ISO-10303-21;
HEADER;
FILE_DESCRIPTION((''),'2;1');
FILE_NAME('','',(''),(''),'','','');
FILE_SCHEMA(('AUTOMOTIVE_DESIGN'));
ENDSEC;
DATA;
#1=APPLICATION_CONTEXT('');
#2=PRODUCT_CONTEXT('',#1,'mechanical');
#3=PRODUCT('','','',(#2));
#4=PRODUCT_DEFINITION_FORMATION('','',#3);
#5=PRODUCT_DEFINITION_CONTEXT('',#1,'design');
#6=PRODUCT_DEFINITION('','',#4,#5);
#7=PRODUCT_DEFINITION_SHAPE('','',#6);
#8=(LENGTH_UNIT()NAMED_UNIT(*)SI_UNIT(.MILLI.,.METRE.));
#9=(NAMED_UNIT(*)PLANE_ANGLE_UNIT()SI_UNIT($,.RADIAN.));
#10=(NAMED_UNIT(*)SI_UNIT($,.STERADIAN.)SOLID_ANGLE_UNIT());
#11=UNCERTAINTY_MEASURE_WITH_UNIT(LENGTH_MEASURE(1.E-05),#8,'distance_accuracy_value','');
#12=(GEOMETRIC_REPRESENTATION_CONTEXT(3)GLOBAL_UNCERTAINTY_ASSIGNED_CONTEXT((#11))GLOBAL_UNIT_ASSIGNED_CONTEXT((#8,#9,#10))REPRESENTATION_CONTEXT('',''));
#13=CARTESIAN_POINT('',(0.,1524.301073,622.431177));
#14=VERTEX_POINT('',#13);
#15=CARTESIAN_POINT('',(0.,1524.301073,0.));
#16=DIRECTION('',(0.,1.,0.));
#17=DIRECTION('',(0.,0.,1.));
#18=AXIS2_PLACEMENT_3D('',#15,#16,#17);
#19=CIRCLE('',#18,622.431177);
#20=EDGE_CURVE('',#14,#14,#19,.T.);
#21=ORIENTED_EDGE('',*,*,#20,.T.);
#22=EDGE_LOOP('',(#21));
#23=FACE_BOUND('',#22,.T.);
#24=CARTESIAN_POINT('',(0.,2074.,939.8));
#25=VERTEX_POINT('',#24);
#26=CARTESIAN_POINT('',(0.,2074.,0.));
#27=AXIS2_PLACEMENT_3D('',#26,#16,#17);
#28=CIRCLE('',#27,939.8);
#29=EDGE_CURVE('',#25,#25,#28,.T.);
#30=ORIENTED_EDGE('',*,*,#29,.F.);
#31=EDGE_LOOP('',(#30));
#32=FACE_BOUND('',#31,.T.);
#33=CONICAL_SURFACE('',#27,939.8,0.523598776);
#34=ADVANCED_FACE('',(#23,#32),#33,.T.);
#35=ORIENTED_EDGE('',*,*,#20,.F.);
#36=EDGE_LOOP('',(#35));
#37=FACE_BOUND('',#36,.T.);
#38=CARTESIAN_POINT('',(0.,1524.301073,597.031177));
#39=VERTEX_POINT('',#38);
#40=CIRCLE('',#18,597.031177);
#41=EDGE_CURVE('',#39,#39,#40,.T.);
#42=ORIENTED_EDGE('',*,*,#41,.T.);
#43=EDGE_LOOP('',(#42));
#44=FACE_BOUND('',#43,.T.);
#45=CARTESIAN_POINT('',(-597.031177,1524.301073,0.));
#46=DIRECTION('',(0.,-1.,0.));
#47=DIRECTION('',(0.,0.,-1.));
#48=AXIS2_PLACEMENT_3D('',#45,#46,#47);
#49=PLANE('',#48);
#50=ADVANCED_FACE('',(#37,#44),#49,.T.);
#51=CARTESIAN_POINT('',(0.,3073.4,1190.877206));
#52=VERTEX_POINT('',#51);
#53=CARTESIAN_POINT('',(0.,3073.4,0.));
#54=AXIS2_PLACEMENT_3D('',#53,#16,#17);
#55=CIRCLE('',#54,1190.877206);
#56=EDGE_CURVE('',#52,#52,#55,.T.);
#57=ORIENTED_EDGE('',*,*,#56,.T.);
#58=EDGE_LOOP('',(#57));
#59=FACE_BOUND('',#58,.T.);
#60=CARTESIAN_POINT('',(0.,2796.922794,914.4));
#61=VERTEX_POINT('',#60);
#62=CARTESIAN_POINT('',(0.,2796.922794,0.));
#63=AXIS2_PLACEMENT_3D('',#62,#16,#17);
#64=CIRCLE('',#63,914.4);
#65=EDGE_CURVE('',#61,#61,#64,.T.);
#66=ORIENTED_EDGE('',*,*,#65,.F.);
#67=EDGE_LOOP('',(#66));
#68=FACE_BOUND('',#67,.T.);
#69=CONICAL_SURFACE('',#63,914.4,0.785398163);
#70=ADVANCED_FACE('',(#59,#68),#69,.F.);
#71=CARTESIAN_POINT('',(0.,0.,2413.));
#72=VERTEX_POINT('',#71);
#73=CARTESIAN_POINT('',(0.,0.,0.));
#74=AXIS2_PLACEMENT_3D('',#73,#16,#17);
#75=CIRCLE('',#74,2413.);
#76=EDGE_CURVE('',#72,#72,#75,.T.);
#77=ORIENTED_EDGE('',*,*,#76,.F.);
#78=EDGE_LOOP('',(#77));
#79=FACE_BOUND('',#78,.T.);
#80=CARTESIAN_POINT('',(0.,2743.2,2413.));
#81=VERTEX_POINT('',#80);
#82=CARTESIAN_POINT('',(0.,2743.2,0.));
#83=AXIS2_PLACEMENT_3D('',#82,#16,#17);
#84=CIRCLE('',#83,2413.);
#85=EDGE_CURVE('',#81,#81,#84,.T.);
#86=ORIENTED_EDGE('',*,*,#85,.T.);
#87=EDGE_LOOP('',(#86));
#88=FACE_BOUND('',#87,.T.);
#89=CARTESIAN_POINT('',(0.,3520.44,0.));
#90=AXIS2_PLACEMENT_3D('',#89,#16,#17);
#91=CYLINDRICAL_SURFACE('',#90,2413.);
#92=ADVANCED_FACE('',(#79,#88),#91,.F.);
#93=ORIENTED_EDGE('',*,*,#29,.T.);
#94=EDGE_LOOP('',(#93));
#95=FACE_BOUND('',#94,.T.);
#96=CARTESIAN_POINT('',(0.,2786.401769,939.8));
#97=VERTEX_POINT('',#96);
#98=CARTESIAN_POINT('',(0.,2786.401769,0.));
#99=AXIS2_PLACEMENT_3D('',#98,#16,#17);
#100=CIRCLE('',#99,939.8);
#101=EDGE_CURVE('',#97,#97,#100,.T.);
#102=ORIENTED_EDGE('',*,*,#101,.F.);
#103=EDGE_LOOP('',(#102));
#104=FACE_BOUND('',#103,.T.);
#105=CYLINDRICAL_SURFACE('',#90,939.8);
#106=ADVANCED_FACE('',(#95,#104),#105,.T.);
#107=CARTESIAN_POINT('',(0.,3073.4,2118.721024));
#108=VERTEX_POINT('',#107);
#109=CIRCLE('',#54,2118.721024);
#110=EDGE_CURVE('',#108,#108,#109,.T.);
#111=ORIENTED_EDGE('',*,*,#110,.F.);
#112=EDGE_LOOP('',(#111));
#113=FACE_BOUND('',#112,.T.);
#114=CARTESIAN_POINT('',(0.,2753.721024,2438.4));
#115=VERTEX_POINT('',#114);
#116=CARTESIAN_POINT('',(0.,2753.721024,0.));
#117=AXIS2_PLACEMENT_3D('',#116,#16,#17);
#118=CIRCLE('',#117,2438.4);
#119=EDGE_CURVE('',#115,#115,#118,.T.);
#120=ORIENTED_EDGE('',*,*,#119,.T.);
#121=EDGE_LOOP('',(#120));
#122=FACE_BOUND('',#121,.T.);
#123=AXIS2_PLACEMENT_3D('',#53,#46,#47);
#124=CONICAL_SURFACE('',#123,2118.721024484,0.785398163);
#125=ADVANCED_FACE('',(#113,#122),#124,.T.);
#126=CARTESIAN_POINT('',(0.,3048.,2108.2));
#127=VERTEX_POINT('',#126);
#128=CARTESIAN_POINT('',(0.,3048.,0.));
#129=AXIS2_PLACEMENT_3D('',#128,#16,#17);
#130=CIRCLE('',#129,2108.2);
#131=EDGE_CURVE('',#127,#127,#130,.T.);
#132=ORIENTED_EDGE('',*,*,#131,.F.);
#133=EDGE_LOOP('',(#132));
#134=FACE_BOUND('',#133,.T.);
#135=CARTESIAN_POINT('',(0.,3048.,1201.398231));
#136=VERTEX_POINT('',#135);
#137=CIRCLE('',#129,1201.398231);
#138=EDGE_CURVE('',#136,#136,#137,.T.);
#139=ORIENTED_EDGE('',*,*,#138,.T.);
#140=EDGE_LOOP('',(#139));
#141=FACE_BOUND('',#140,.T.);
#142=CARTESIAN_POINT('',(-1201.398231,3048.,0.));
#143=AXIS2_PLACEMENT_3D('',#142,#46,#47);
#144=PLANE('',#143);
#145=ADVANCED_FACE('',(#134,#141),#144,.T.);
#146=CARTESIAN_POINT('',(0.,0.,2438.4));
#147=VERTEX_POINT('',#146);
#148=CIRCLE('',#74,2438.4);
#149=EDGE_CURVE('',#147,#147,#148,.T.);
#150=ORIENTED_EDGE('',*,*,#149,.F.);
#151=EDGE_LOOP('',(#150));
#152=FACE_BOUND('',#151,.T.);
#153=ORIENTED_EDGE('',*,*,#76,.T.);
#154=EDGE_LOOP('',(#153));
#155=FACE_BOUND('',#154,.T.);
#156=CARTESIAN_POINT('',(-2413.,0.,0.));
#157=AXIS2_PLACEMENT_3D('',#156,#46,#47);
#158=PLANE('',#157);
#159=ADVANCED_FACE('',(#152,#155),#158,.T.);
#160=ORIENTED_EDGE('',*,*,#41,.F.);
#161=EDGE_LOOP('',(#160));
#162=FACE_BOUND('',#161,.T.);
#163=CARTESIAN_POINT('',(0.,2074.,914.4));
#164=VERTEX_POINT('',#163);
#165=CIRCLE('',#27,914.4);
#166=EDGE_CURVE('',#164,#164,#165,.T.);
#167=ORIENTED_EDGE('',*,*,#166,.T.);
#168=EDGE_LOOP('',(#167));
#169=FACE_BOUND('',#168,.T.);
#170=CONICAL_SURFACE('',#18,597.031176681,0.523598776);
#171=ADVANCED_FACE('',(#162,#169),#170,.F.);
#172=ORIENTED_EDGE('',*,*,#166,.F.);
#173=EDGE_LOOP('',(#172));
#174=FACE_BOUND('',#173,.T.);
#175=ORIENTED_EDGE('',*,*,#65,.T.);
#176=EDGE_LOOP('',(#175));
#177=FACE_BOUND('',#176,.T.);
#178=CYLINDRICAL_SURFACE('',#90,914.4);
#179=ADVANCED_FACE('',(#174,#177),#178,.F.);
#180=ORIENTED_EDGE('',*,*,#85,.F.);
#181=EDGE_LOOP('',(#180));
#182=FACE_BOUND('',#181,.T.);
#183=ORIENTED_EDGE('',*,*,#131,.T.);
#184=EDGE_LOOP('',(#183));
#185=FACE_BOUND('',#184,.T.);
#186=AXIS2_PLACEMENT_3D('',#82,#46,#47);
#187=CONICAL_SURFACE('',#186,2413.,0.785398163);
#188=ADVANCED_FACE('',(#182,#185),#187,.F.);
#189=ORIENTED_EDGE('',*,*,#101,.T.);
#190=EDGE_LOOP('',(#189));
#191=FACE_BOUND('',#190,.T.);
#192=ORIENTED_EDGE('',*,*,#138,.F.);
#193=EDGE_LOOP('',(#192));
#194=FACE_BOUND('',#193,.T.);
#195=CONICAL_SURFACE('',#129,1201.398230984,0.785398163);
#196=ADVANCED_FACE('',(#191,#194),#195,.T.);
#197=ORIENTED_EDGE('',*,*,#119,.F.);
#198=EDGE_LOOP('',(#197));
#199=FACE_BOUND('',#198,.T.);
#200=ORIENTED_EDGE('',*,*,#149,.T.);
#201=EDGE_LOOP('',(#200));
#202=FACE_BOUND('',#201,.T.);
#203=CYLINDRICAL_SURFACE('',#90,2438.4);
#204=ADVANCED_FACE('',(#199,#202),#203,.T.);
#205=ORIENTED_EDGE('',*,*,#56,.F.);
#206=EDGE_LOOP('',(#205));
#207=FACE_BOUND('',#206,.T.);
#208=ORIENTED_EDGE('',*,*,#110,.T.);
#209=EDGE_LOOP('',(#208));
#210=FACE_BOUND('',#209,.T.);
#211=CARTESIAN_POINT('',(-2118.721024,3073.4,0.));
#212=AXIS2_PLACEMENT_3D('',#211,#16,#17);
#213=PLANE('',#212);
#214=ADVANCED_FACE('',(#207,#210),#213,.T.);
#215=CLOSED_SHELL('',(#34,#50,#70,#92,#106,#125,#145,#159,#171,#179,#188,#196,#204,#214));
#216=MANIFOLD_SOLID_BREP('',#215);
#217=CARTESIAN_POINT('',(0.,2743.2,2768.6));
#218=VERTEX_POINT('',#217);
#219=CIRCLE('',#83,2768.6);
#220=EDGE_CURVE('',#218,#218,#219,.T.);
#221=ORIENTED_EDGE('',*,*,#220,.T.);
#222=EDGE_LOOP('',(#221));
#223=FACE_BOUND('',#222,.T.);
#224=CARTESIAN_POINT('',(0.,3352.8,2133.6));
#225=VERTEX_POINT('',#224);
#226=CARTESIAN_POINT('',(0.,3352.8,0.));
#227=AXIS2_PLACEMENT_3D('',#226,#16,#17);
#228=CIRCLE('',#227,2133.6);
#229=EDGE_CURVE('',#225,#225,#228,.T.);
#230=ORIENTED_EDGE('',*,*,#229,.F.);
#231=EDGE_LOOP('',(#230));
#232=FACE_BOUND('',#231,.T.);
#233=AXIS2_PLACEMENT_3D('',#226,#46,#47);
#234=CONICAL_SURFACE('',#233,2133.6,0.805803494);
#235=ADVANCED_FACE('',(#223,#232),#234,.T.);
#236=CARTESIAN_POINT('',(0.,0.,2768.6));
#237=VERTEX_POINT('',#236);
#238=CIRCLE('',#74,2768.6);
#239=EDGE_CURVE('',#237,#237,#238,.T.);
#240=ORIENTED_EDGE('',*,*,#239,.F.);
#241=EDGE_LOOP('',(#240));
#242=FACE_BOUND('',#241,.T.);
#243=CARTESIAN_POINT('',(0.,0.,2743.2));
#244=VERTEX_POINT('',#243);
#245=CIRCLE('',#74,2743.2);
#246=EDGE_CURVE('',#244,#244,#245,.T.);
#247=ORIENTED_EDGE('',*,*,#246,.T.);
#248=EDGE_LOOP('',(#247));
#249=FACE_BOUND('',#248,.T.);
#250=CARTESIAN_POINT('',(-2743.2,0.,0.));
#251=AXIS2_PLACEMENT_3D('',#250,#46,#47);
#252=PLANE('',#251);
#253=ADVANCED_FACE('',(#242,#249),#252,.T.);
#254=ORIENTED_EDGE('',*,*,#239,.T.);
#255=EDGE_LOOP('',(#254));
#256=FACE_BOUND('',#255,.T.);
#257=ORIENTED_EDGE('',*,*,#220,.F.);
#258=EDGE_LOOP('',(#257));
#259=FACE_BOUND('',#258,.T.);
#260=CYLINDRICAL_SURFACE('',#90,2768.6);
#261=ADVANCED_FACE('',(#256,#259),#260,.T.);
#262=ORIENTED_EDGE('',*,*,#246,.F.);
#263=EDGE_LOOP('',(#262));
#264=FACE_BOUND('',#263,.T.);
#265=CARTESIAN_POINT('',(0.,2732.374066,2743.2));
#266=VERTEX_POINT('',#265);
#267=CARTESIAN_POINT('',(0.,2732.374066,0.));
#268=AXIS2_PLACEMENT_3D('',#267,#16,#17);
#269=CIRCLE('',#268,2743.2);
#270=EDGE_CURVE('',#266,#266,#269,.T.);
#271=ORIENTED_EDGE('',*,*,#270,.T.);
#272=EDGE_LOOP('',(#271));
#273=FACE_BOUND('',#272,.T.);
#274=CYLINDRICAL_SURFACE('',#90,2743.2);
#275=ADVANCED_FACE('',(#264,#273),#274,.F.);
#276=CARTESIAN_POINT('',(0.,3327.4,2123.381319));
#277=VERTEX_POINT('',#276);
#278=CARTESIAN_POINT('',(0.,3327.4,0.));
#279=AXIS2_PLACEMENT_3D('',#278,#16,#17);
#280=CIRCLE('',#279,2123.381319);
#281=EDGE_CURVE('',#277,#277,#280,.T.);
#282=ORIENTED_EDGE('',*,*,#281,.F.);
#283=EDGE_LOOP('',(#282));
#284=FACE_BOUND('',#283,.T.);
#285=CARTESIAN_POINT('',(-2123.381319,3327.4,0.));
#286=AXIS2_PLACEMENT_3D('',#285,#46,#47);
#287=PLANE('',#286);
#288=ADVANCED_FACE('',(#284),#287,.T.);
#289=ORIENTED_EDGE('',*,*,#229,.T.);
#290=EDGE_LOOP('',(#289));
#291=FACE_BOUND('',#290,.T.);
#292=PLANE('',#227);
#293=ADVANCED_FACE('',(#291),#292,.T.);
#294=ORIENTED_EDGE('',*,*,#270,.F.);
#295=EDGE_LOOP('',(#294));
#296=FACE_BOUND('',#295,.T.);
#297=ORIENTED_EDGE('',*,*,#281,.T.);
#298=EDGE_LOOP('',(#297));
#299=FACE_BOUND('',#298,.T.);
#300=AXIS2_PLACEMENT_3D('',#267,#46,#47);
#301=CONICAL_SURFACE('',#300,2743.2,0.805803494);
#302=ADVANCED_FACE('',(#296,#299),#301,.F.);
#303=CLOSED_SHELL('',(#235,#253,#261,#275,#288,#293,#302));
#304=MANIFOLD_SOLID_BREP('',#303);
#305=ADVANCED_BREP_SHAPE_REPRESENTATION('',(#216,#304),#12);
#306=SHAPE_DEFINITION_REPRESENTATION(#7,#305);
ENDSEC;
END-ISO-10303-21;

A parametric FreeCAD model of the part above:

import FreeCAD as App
import Part
import Sketcher
Q = App.Units.Quantity

doc = App.newDocument("Part")
body = doc.addObject("PartDesign::Body", "Body")

# Sketch on XY plane
sketch1 = body.newObject("Sketcher::SketchObject", "Sketch")
sketch1.AttachmentSupport = (doc.getObject("XY_Plane"), [""])
sketch1.MapMode = "FlatFace"
sketch1.addGeometry(Part.LineSegment(App.Vector(-2438, 2754, 0), App.Vector(-2438, 0, 0)), False)
sketch1.addGeometry(Part.LineSegment(App.Vector(-2438, 0, 0), App.Vector(-2413, 0, 0)), False)
sketch1.addGeometry(Part.LineSegment(App.Vector(-2413, 0, 0), App.Vector(-2413, 2743, 0)), False)
sketch1.addGeometry(Part.LineSegment(App.Vector(-2413, 2743, 0), App.Vector(-2108, 3048, 0)), False)
sketch1.addGeometry(Part.LineSegment(App.Vector(-2108, 3048, 0), App.Vector(-1201, 3048, 0)), False)
sketch1.addGeometry(Part.LineSegment(App.Vector(-1201, 3048, 0), App.Vector(-940, 2786, 0)), False)
sketch1.addGeometry(Part.LineSegment(App.Vector(-940, 2786, 0), App.Vector(-940, 2074, 0)), False)
sketch1.addGeometry(Part.LineSegment(App.Vector(-940, 2074, 0), App.Vector(-622, 1524, 0)), False)
sketch1.addGeometry(Part.LineSegment(App.Vector(-622, 1524, 0), App.Vector(-597, 1524, 0)), False)
sketch1.addGeometry(Part.LineSegment(App.Vector(-597, 1524, 0), App.Vector(-914, 2074, 0)), False)
sketch1.addGeometry(Part.LineSegment(App.Vector(-914, 2074, 0), App.Vector(-914, 2797, 0)), False)
sketch1.addGeometry(Part.LineSegment(App.Vector(-914, 2797, 0), App.Vector(-1191, 3073, 0)), False)
sketch1.addGeometry(Part.LineSegment(App.Vector(-1191, 3073, 0), App.Vector(-2119, 3073, 0)), False)
sketch1.addGeometry(Part.LineSegment(App.Vector(-2119, 3073, 0), App.Vector(-2438, 2754, 0)), False)
sketch1.addConstraint(Sketcher.Constraint("Coincident", 0, 2, 1, 1))
sketch1.addConstraint(Sketcher.Constraint("Coincident", 1, 2, 2, 1))
sketch1.addConstraint(Sketcher.Constraint("Coincident", 2, 2, 3, 1))
sketch1.addConstraint(Sketcher.Constraint("Coincident", 3, 2, 4, 1))
sketch1.addConstraint(Sketcher.Constraint("Coincident", 4, 2, 5, 1))
sketch1.addConstraint(Sketcher.Constraint("Coincident", 5, 2, 6, 1))
sketch1.addConstraint(Sketcher.Constraint("Coincident", 6, 2, 7, 1))
sketch1.addConstraint(Sketcher.Constraint("Coincident", 7, 2, 8, 1))
sketch1.addConstraint(Sketcher.Constraint("Coincident", 8, 2, 9, 1))
sketch1.addConstraint(Sketcher.Constraint("Coincident", 9, 2, 10, 1))
sketch1.addConstraint(Sketcher.Constraint("Coincident", 10, 2, 11, 1))
sketch1.addConstraint(Sketcher.Constraint("Coincident", 11, 2, 12, 1))
sketch1.addConstraint(Sketcher.Constraint("Coincident", 12, 2, 13, 1))
sketch1.addConstraint(Sketcher.Constraint("Coincident", 13, 2, 0, 1))
sketch1.addConstraint(Sketcher.Constraint("Vertical", 0))
sketch1.addConstraint(Sketcher.Constraint("Horizontal", 1))
sketch1.addConstraint(Sketcher.Constraint("Vertical", 2))
sketch1.addConstraint(Sketcher.Constraint("Horizontal", 4))
sketch1.addConstraint(Sketcher.Constraint("Vertical", 6))
sketch1.addConstraint(Sketcher.Constraint("Horizontal", 8))
sketch1.addConstraint(Sketcher.Constraint("Vertical", 10))
sketch1.addConstraint(Sketcher.Constraint("Horizontal", 12))
sketch1.addConstraint(Sketcher.Constraint("PointOnObject", 0, 2, -1))
sketch1.addConstraint(Sketcher.Constraint("Perpendicular", 3, 5))
sketch1.addConstraint(Sketcher.Constraint("Parallel", 7, 9))
sketch1.addConstraint(Sketcher.Constraint("Parallel", 5, 11))
sketch1.addConstraint(Sketcher.Constraint("Perpendicular", 11, 13))
sketch1.addConstraint(Sketcher.Constraint("Horizontal", 6, 2, 9, 2))
sketch1.addConstraint(Sketcher.Constraint("Equal", 1, 8))
sketch1.addConstraint(Sketcher.Constraint("DistanceX", 1, 1, 1, 2, Q("1 in")))
sketch1.addConstraint(Sketcher.Constraint("DistanceY", 2, 1, 2, 2, Q("108 in")))
sketch1.addConstraint(Sketcher.Constraint("DistanceX", 0, 2, -1, 1, Q("96 in")))
sketch1.addConstraint(Sketcher.Constraint("DistanceX", 3, 2, -1, 1, Q("83 in")))
sketch1.addConstraint(Sketcher.Constraint("DistanceY", -1, 1, 3, 2, Q("120 in")))
sketch1.addConstraint(Sketcher.Constraint("DistanceX", 5, 2, -1, 1, Q("37 in")))
sketch1.addConstraint(Sketcher.Constraint("DistanceY", -1, 1, 11, 2, Q("121 in")))
sketch1.addConstraint(Sketcher.Constraint("Angle", 7, Q("-60 deg")))
sketch1.addConstraint(Sketcher.Constraint("DistanceX", 4, 1, 4, 2, 906.801769))
sketch1.addConstraint(Sketcher.Constraint("DistanceY", 6, 2, 6, 1, 712.401769))
sketch1.addConstraint(Sketcher.Constraint("DistanceX", 12, 2, 12, 1, 927.843818))
sketch1.addConstraint(Sketcher.Constraint("DistanceY", 0, 2, 0, 1, 2753.721024))
sketch1.addConstraint(Sketcher.Constraint("Distance", 7, 634.737647))
revolution = body.newObject("PartDesign::Revolution", "Revolution")
revolution.Profile = sketch1
revolution.ReferenceAxis = (sketch1, ["V_Axis"])
revolution.Angle = 360
body2 = doc.addObject("PartDesign::Body", "Body001")

# Sketch on XY plane
sketch2 = body2.newObject("Sketcher::SketchObject", "Sketch001")
sketch2.AttachmentSupport = (doc.getObject("XY_Plane001"), [""])
sketch2.MapMode = "FlatFace"
sketch2.addGeometry(Part.LineSegment(App.Vector(-2769, 0, 0), App.Vector(-2743, 0, 0)), False)
sketch2.addGeometry(Part.LineSegment(App.Vector(-2743, 0, 0), App.Vector(-2743, 2732, 0)), False)
sketch2.addGeometry(Part.LineSegment(App.Vector(-2743, 2732, 0), App.Vector(-2123, 3327, 0)), False)
sketch2.addGeometry(Part.LineSegment(App.Vector(-2123, 3327, 0), App.Vector(0, 3327, 0)), False)
sketch2.addGeometry(Part.LineSegment(App.Vector(0, 3327, 0), App.Vector(0, 3353, 0)), False)
sketch2.addGeometry(Part.LineSegment(App.Vector(0, 3353, 0), App.Vector(-2134, 3353, 0)), False)
sketch2.addGeometry(Part.LineSegment(App.Vector(-2134, 3353, 0), App.Vector(-2769, 2743, 0)), False)
sketch2.addGeometry(Part.LineSegment(App.Vector(-2769, 2743, 0), App.Vector(-2769, 0, 0)), False)
sketch2.addConstraint(Sketcher.Constraint("Coincident", 0, 2, 1, 1))
sketch2.addConstraint(Sketcher.Constraint("Coincident", 1, 2, 2, 1))
sketch2.addConstraint(Sketcher.Constraint("Coincident", 2, 2, 3, 1))
sketch2.addConstraint(Sketcher.Constraint("Coincident", 3, 2, 4, 1))
sketch2.addConstraint(Sketcher.Constraint("Coincident", 4, 2, 5, 1))
sketch2.addConstraint(Sketcher.Constraint("Coincident", 5, 2, 6, 1))
sketch2.addConstraint(Sketcher.Constraint("Coincident", 6, 2, 7, 1))
sketch2.addConstraint(Sketcher.Constraint("Coincident", 7, 2, 0, 1))
sketch2.addConstraint(Sketcher.Constraint("Horizontal", 0))
sketch2.addConstraint(Sketcher.Constraint("Vertical", 1))
sketch2.addConstraint(Sketcher.Constraint("Horizontal", 3))
sketch2.addConstraint(Sketcher.Constraint("Vertical", 4))
sketch2.addConstraint(Sketcher.Constraint("Horizontal", 5))
sketch2.addConstraint(Sketcher.Constraint("Vertical", 7))
sketch2.addConstraint(Sketcher.Constraint("PointOnObject", 0, 2, -1))
sketch2.addConstraint(Sketcher.Constraint("PointOnObject", 3, 2, -2))
sketch2.addConstraint(Sketcher.Constraint("Parallel", 2, 6))
sketch2.addConstraint(Sketcher.Constraint("Equal", 0, 4))
sketch2.addConstraint(Sketcher.Constraint("DistanceX", 0, 1, 0, 2, Q("1 in")))
sketch2.addConstraint(Sketcher.Constraint("DistanceX", 5, 2, 5, 1, Q("84 in")))
sketch2.addConstraint(Sketcher.Constraint("DistanceY", 7, 2, 7, 1, Q("108 in")))
sketch2.addConstraint(Sketcher.Constraint("DistanceX", 0, 2, -1, 1, Q("108 in")))
sketch2.addConstraint(Sketcher.Constraint("DistanceY", -1, 1, 2, 2, Q("131 in")))
sketch2.addConstraint(Sketcher.Constraint("DistanceX", 3, 1, 3, 2, 2123.381319))
revolution2 = body2.newObject("PartDesign::Revolution", "Revolution001")
revolution2.Profile = sketch2
revolution2.ReferenceAxis = (sketch2, ["V_Axis"])
revolution2.Angle = 360

doc.recompute()
